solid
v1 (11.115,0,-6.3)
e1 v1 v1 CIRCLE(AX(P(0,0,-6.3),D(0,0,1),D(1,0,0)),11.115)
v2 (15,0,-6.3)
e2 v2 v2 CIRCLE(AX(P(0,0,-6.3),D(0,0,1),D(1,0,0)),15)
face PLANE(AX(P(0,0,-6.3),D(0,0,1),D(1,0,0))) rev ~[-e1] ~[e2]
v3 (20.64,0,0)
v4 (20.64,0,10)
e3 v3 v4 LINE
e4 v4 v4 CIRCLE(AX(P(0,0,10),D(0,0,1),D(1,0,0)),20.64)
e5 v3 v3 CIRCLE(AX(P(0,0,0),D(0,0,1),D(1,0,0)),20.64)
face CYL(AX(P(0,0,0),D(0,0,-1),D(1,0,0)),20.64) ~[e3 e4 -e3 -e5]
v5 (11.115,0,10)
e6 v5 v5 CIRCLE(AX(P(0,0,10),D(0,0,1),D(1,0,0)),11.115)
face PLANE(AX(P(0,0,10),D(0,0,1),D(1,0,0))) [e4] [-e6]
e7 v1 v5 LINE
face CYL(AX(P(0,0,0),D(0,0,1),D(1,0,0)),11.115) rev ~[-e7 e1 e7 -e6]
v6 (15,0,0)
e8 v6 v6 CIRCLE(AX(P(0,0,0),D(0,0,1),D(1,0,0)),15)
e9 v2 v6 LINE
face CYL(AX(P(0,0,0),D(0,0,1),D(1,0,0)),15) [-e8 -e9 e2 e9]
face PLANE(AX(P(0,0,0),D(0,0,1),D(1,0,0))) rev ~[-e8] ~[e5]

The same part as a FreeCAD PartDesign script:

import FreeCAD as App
import Part
import Sketcher

V = App.Vector
Q = App.Units.Quantity

doc = App.newDocument("Part")
body = doc.addObject("PartDesign::Body", "Body")

# Sketch on XY plane
sketch1 = body.newObject("Sketcher::SketchObject", "Sketch")
sketch1.AttachmentSupport = (doc.getObject("XY_Plane"), [""])
sketch1.MapMode = "FlatFace"
sketch1.addGeometry(Part.Circle(V(0, 0, 0), V(0, 0, 1), 21), False)
sketch1.addConstraint(Sketcher.Constraint("Coincident", 0, 3, -1, 1))
sketch1.addConstraint(Sketcher.Constraint("Diameter", 0, Q("41.28 mm")))
pad1 = body.newObject("PartDesign::Pad", "Pad")
pad1.Profile = sketch1
pad1.Length = 10

# Sketch on XY plane
sketch2 = body.newObject("Sketcher::SketchObject", "Sketch001")
sketch2.AttachmentSupport = (doc.getObject("XY_Plane"), [""])
sketch2.MapMode = "FlatFace"
sketch2.addGeometry(Part.Circle(V(0, 0, 0), V(0, 0, 1), 15), False)
sketch2.addConstraint(Sketcher.Constraint("Coincident", 0, 3, -1, 1))
sketch2.addConstraint(Sketcher.Constraint("Diameter", 0, Q("30 mm")))
pad2 = body.newObject("PartDesign::Pad", "Pad001")
pad2.Profile = sketch2
pad2.Length = 12.6
pad2.Midplane = True

# Sketch on XY plane
sketch3 = body.newObject("Sketcher::SketchObject", "Sketch002")
sketch3.AttachmentSupport = (doc.getObject("XY_Plane"), [""])
sketch3.MapMode = "FlatFace"
sketch3.addGeometry(Part.Circle(V(0, 0, 0), V(0, 0, 1), 11), False)
sketch3.addConstraint(Sketcher.Constraint("Coincident", 0, 3, -1, 1))
sketch3.addConstraint(Sketcher.Constraint("Diameter", 0, Q("22.23 mm")))
pocket1 = body.newObject("PartDesign::Pocket", "Pocket")
pocket1.Profile = sketch3
pocket1.Length = 25
pocket1.Midplane = True

doc.recompute()
